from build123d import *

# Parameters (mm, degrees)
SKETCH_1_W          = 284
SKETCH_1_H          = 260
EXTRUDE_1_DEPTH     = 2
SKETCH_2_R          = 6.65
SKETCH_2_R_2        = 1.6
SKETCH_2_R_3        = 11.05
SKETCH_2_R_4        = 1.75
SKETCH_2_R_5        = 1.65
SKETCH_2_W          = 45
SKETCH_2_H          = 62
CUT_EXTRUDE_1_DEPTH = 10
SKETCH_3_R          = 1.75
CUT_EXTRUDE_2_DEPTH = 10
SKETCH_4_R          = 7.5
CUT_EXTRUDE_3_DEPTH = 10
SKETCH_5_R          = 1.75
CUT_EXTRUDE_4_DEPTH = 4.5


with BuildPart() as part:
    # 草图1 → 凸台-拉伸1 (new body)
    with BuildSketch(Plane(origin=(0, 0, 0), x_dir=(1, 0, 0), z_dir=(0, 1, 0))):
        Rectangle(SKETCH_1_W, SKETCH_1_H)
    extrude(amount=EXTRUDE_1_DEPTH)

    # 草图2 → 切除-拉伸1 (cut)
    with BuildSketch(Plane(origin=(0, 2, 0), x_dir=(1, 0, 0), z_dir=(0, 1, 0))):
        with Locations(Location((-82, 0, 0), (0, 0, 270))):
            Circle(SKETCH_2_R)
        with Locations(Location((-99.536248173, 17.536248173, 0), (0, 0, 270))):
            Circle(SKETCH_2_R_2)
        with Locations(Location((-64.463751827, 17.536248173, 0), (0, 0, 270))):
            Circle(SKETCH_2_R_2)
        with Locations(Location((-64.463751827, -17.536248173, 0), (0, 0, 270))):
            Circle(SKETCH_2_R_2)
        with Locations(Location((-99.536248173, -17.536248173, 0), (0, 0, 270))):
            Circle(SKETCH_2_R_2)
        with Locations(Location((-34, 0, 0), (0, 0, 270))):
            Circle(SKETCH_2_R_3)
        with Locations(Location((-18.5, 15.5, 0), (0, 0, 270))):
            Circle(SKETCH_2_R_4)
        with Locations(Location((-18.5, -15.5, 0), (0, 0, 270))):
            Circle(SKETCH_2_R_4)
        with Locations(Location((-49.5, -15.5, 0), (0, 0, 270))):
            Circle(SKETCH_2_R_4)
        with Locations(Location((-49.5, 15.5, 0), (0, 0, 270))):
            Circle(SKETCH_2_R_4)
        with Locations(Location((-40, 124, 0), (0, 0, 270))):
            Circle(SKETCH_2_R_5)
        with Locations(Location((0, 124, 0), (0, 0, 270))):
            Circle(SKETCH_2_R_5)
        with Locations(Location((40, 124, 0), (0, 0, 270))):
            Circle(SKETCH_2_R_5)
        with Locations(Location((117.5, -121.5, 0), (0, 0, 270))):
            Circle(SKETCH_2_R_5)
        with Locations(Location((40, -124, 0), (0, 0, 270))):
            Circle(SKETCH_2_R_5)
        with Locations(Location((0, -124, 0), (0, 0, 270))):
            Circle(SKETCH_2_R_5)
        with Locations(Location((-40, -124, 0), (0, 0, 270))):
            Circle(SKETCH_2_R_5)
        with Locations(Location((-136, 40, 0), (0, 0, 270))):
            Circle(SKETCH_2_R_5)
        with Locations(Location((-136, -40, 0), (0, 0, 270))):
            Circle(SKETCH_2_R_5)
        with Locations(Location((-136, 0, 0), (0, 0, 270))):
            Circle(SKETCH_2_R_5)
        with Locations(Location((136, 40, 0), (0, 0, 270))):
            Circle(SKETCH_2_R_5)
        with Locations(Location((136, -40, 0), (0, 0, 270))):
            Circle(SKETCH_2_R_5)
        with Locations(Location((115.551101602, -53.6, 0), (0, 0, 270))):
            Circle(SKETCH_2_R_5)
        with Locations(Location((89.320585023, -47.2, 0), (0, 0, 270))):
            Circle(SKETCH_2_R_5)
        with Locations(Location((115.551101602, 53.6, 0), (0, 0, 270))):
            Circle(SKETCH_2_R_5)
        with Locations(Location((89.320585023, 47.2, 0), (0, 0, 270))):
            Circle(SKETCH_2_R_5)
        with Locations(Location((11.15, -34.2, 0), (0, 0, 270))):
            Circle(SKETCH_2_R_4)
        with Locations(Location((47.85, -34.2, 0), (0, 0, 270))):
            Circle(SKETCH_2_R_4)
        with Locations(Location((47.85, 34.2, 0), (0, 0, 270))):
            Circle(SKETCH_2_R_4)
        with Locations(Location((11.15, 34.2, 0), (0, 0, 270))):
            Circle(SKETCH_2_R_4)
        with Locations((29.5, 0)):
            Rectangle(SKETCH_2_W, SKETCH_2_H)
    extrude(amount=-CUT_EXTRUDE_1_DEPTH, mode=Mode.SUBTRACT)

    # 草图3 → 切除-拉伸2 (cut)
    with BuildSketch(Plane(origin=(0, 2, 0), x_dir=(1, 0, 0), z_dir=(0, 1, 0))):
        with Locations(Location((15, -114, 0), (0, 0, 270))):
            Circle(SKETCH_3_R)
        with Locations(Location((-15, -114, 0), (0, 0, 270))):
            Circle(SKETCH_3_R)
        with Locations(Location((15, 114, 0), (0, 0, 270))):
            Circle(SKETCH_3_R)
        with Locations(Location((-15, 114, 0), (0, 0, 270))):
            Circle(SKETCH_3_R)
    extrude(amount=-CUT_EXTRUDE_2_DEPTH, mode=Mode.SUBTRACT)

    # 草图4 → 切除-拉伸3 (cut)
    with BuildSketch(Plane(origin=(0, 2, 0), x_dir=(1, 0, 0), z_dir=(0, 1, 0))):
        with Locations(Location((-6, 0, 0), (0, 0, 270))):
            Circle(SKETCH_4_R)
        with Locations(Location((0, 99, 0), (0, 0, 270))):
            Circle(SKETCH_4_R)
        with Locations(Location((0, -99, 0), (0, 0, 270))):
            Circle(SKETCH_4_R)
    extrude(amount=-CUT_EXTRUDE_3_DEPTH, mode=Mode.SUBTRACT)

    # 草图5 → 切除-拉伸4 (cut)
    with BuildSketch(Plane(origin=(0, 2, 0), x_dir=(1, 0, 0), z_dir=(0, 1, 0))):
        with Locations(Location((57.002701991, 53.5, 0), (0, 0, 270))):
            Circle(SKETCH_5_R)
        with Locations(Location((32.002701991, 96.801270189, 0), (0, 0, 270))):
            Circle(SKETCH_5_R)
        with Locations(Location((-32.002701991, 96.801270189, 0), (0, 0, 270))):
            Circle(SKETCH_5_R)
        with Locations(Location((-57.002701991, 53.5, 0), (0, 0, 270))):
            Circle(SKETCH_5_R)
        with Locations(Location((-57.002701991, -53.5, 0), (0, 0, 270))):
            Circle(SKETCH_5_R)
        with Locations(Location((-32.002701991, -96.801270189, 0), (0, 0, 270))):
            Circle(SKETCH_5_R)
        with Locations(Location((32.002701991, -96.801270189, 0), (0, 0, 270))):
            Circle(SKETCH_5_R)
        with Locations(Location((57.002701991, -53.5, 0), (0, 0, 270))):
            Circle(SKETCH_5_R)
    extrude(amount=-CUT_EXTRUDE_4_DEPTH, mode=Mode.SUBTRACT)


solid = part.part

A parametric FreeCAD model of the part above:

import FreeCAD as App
import Part
import Sketcher

V = App.Vector

doc = App.newDocument("Part")
params = doc.addObject("Spreadsheet::Sheet", "Params")
for row, (alias, value) in enumerate([
    ("sketch1_width", "284 mm"),
    ("sketch1_height", "260 mm"),
    ("pad1_length", "2 mm"),
    ("sketch2_diameter", "13.3 mm"),
    ("sketch2_diameter2", "3.2 mm"),
    ("sketch2_diameter3", "22.1 mm"),
    ("sketch2_diameter4", "3.5 mm"),
    ("sketch2_diameter5", "3.3 mm"),
    ("pocket1_length", "10 mm"),
    ("sketch3_diameter", "3.5 mm"),
    ("pocket2_length", "10 mm"),
    ("sketch4_diameter", "15 mm"),
    ("pocket3_length", "10 mm"),
    ("sketch5_diameter", "3.5 mm"),
    ("pocket4_length", "4.5 mm"),
], start=1):
    params.set(f"A{row}", alias)
    params.set(f"B{row}", "=" + value)
    params.setAlias(f"B{row}", alias)

body = doc.addObject("PartDesign::Body", "Body")

# Sketch on XZ plane
sketch1 = body.newObject("Sketcher::SketchObject", "Sketch")
sketch1.AttachmentSupport = (doc.getObject("XZ_Plane"), [""])
sketch1.MapMode = "FlatFace"
sketch1.addGeometry(Part.LineSegment(V(-142, -130, 0), V(-142, 130, 0)), False)
sketch1.addGeometry(Part.LineSegment(V(-142, 130, 0), V(142, 130, 0)), False)
sketch1.addGeometry(Part.LineSegment(V(142, 130, 0), V(142, -130, 0)), False)
sketch1.addGeometry(Part.LineSegment(V(142, -130, 0), V(-142, -130, 0)), False)
sketch1.addConstraint(Sketcher.Constraint("Coincident", 0, 2, 1, 1))
sketch1.addConstraint(Sketcher.Constraint("Coincident", 1, 2, 2, 1))
sketch1.addConstraint(Sketcher.Constraint("Coincident", 2, 2, 3, 1))
sketch1.addConstraint(Sketcher.Constraint("Coincident", 3, 2, 0, 1))
sketch1.addConstraint(Sketcher.Constraint("Vertical", 0))
sketch1.addConstraint(Sketcher.Constraint("Horizontal", 1))
sketch1.addConstraint(Sketcher.Constraint("Vertical", 2))
sketch1.addConstraint(Sketcher.Constraint("Horizontal", 3))
sketch1.addConstraint(Sketcher.Constraint("Symmetric", 0, 2, 2, 2, -1, 1))
sketch1.addConstraint(Sketcher.Constraint("DistanceX", 1, 1, 1, 2, 284.0))
sketch1.addConstraint(Sketcher.Constraint("DistanceY", 0, 1, 0, 2, 260.0))
sketch1.setExpression("Constraints[9]", "Params.sketch1_width")
sketch1.setExpression("Constraints[10]", "Params.sketch1_height")
pad1 = body.newObject("PartDesign::Pad", "Pad")
pad1.Profile = sketch1
pad1.setExpression("Length", "Params.pad1_length")
pad1.Reversed = True

# Sketch on XZ plane
sketch2 = body.newObject("Sketcher::SketchObject", "Sketch001")
sketch2.AttachmentSupport = (doc.getObject("XZ_Plane"), [""])
sketch2.MapMode = "FlatFace"
sketch2.AttachmentOffset = App.Placement(V(0, 0, -2), App.Rotation())
sketch2.addGeometry(Part.Circle(V(-82, 0, 0), V(0, 0, 1), 6.7), False)
sketch2.addGeometry(Part.Circle(V(-99.5, -17.5, 0), V(0, 0, 1), 1.6), False)
sketch2.addGeometry(Part.Circle(V(-64.5, -17.5, 0), V(0, 0, 1), 1.6), False)
sketch2.addGeometry(Part.Circle(V(-64.5, 17.5, 0), V(0, 0, 1), 1.6), False)
sketch2.addGeometry(Part.Circle(V(-99.5, 17.5, 0), V(0, 0, 1), 1.6), False)
sketch2.addGeometry(Part.Circle(V(-34, 0, 0), V(0, 0, 1), 11.1), False)
sketch2.addGeometry(Part.Circle(V(-18.5, -15.5, 0), V(0, 0, 1), 1.8), False)
sketch2.addGeometry(Part.Circle(V(-18.5, 15.5, 0), V(0, 0, 1), 1.8), False)
sketch2.addGeometry(Part.Circle(V(-49.5, 15.5, 0), V(0, 0, 1), 1.8), False)
sketch2.addGeometry(Part.Circle(V(-49.5, -15.5, 0), V(0, 0, 1), 1.8), False)
sketch2.addGeometry(Part.Circle(V(-40, -124, 0), V(0, 0, 1), 1.6), False)
sketch2.addGeometry(Part.Circle(V(0, -124, 0), V(0, 0, 1), 1.6), False)
sketch2.addGeometry(Part.Circle(V(40, -124, 0), V(0, 0, 1), 1.6), False)
sketch2.addGeometry(Part.Circle(V(117.5, 121.5, 0), V(0, 0, 1), 1.6), False)
sketch2.addGeometry(Part.Circle(V(40, 124, 0), V(0, 0, 1), 1.6), False)
sketch2.addGeometry(Part.Circle(V(0, 124, 0), V(0, 0, 1), 1.6), False)
sketch2.addGeometry(Part.Circle(V(-40, 124, 0), V(0, 0, 1), 1.6), False)
sketch2.addGeometry(Part.Circle(V(-136, -40, 0), V(0, 0, 1), 1.6), False)
sketch2.addGeometry(Part.Circle(V(-136, 40, 0), V(0, 0, 1), 1.6), False)
sketch2.addGeometry(Part.Circle(V(-136, 0, 0), V(0, 0, 1), 1.6), False)
sketch2.addGeometry(Part.Circle(V(136, -40, 0), V(0, 0, 1), 1.6), False)
sketch2.addGeometry(Part.Circle(V(136, 40, 0), V(0, 0, 1), 1.6), False)
sketch2.addGeometry(Part.Circle(V(115.6, 53.6, 0), V(0, 0, 1), 1.6), False)
sketch2.addGeometry(Part.Circle(V(89.3, 47.2, 0), V(0, 0, 1), 1.6), False)
sketch2.addGeometry(Part.Circle(V(115.6, -53.6, 0), V(0, 0, 1), 1.6), False)
sketch2.addGeometry(Part.Circle(V(89.3, -47.2, 0), V(0, 0, 1), 1.6), False)
sketch2.addGeometry(Part.Circle(V(11.2, 34.2, 0), V(0, 0, 1), 1.8), False)
sketch2.addGeometry(Part.Circle(V(47.9, 34.2, 0), V(0, 0, 1), 1.8), False)
sketch2.addGeometry(Part.Circle(V(47.9, -34.2, 0), V(0, 0, 1), 1.8), False)
sketch2.addGeometry(Part.Circle(V(11.2, -34.2, 0), V(0, 0, 1), 1.8), False)
sketch2.addGeometry(Part.LineSegment(V(7, -31, 0), V(7, 31, 0)), False)
sketch2.addGeometry(Part.LineSegment(V(7, 31, 0), V(52, 31, 0)), False)
sketch2.addGeometry(Part.LineSegment(V(52, 31, 0), V(52, -31, 0)), False)
sketch2.addGeometry(Part.LineSegment(V(52, -31, 0), V(7, -31, 0)), False)
sketch2.addConstraint(Sketcher.Constraint("Coincident", 30, 2, 31, 1))
sketch2.addConstraint(Sketcher.Constraint("Coincident", 31, 2, 32, 1))
sketch2.addConstraint(Sketcher.Constraint("Coincident", 32, 2, 33, 1))
sketch2.addConstraint(Sketcher.Constraint("Coincident", 33, 2, 30, 1))
sketch2.addConstraint(Sketcher.Constraint("Vertical", 30))
sketch2.addConstraint(Sketcher.Constraint("Horizontal", 31))
sketch2.addConstraint(Sketcher.Constraint("Vertical", 32))
sketch2.addConstraint(Sketcher.Constraint("Horizontal", 33))
sketch2.addConstraint(Sketcher.Constraint("Equal", 1, 2))
sketch2.addConstraint(Sketcher.Constraint("Equal", 2, 3))
sketch2.addConstraint(Sketcher.Constraint("Equal", 3, 4))
sketch2.addConstraint(Sketcher.Constraint("Equal", 6, 7))
sketch2.addConstraint(Sketcher.Constraint("Equal", 7, 8))
sketch2.addConstraint(Sketcher.Constraint("Equal", 8, 9))
sketch2.addConstraint(Sketcher.Constraint("Equal", 10, 11))
sketch2.addConstraint(Sketcher.Constraint("Equal", 11, 12))
sketch2.addConstraint(Sketcher.Constraint("Equal", 12, 13))
sketch2.addConstraint(Sketcher.Constraint("Equal", 13, 14))
sketch2.addConstraint(Sketcher.Constraint("Equal", 14, 15))
sketch2.addConstraint(Sketcher.Constraint("Equal", 15, 16))
sketch2.addConstraint(Sketcher.Constraint("Equal", 16, 17))
sketch2.addConstraint(Sketcher.Constraint("Equal", 17, 18))
sketch2.addConstraint(Sketcher.Constraint("Equal", 18, 19))
sketch2.addConstraint(Sketcher.Constraint("Equal", 19, 20))
sketch2.addConstraint(Sketcher.Constraint("Equal", 20, 21))
sketch2.addConstraint(Sketcher.Constraint("Equal", 21, 22))
sketch2.addConstraint(Sketcher.Constraint("Equal", 22, 23))
sketch2.addConstraint(Sketcher.Constraint("Equal", 23, 24))
sketch2.addConstraint(Sketcher.Constraint("Equal", 24, 25))
sketch2.addConstraint(Sketcher.Constraint("Equal", 9, 26))
sketch2.addConstraint(Sketcher.Constraint("Equal", 26, 27))
sketch2.addConstraint(Sketcher.Constraint("Equal", 27, 28))
sketch2.addConstraint(Sketcher.Constraint("Equal", 28, 29))
sketch2.addConstraint(Sketcher.Constraint("Symmetric", 10, 3, 14, 3, -1, 1))
sketch2.addConstraint(Sketcher.Constraint("Symmetric", 11, 3, 15, 3, -1, 1))
sketch2.addConstraint(Sketcher.Constraint("Symmetric", 12, 3, 16, 3, -1, 1))
sketch2.addConstraint(Sketcher.Constraint("Symmetric", 18, 3, 20, 3, -1, 1))
sketch2.addConstraint(Sketcher.Constraint("Symmetric", 17, 3, 21, 3, -1, 1))
sketch2.addConstraint(Sketcher.Constraint("Symmetric", 10, 3, 12, 3, -2))
sketch2.addConstraint(Sketcher.Constraint("Symmetric", 17, 3, 20, 3, -2))
sketch2.addConstraint(Sketcher.Constraint("Symmetric", 2, 3, 3, 3, -1))
sketch2.addConstraint(Sketcher.Constraint("Symmetric", 1, 3, 4, 3, -1))
sketch2.addConstraint(Sketcher.Constraint("Symmetric", 6, 3, 7, 3, -1))
sketch2.addConstraint(Sketcher.Constraint("Symmetric", 8, 3, 9, 3, -1))
sketch2.addConstraint(Sketcher.Constraint("Symmetric", 22, 3, 24, 3, -1))
sketch2.addConstraint(Sketcher.Constraint("Symmetric", 23, 3, 25, 3, -1))
sketch2.addConstraint(Sketcher.Constraint("Symmetric", 27, 3, 28, 3, -1))
sketch2.addConstraint(Sketcher.Constraint("Symmetric", 26, 3, 29, 3, -1))
sketch2.addConstraint(Sketcher.Constraint("PointOnObject", 0, 3, -1))
sketch2.addConstraint(Sketcher.Constraint("PointOnObject", 5, 3, -1))
sketch2.addConstraint(Sketcher.Constraint("PointOnObject", 11, 3, -2))
sketch2.addConstraint(Sketcher.Constraint("PointOnObject", 19, 3, -1))
sketch2.addConstraint(Sketcher.Constraint("Horizontal", 1, 3, 2, 3))
sketch2.addConstraint(Sketcher.Constraint("Horizontal", 7, 3, 8, 3))
sketch2.addConstraint(Sketcher.Constraint("Horizontal", 10, 3, 11, 3))
sketch2.addConstraint(Sketcher.Constraint("Horizontal", 26, 3, 27, 3))
sketch2.addConstraint(Sketcher.Constraint("Vertical", 18, 3, 19, 3))
sketch2.addConstraint(Sketcher.Constraint("Diameter", 0, 13.3))
sketch2.addConstraint(Sketcher.Constraint("Diameter", 1, 3.2))
sketch2.addConstraint(Sketcher.Constraint("Diameter", 5, 22.1))
sketch2.addConstraint(Sketcher.Constraint("Diameter", 6, 3.5))
sketch2.addConstraint(Sketcher.Constraint("Diameter", 10, 3.3))
sketch2.addConstraint(Sketcher.Constraint("DistanceX", 31, 1, 31, 2, 45.0))
sketch2.addConstraint(Sketcher.Constraint("DistanceY", 30, 1, 30, 2, 62.0))
sketch2.addConstraint(Sketcher.Constraint("DistanceX", 0, 3, -1, 1, 82.0))
sketch2.addConstraint(Sketcher.Constraint("DistanceX", 5, 3, -1, 1, 34.0))
sketch2.addConstraint(Sketcher.Constraint("DistanceX", 10, 3, -1, 1, 40.0))
sketch2.addConstraint(Sketcher.Constraint("DistanceY", 10, 3, -1, 1, 124.0))
sketch2.addConstraint(Sketcher.Constraint("DistanceX", 17, 3, -1, 1, 136.0))
sketch2.addConstraint(Sketcher.Constraint("DistanceY", 17, 3, -1, 1, 40.0))
sketch2.addConstraint(Sketcher.Constraint("DistanceX", -1, 1, 30, 2, 7.0))
sketch2.addConstraint(Sketcher.Constraint("DistanceY", -1, 1, 30, 2, 31.0))
sketch2.addConstraint(Sketcher.Constraint("DistanceY", 6, 3, 7, 3, 31.0))
sketch2.addConstraint(Sketcher.Constraint("DistanceX", 8, 3, 7, 3, 31.0))
sketch2.addConstraint(Sketcher.Constraint("DistanceX", 7, 3, 13, 3, 136.0))
sketch2.addConstraint(Sketcher.Constraint("DistanceY", 7, 3, 13, 3, 106.0))
sketch2.addConstraint(Sketcher.Constraint("DistanceY", 27, 3, 23, 3, 13.0))
sketch2.addConstraint(Sketcher.Constraint("DistanceX", 6, 3, -1, 1, 18.5))
sketch2.addConstraint(Sketcher.Constraint("DistanceY", -1, 1, 22, 3, 53.6))
sketch2.addConstraint(Sketcher.Constraint("DistanceY", -1, 1, 23, 3, 47.2))
sketch2.addConstraint(Sketcher.Constraint("DistanceX", 26, 3, 27, 3, 36.7))
sketch2.addConstraint(Sketcher.Constraint("DistanceX", -1, 1, 26, 3, 11.15))
sketch2.addConstraint(Sketcher.Constraint("DistanceX", -1, 1, 22, 3, 115.551102))
sketch2.addConstraint(Sketcher.Constraint("DistanceX", 1, 3, -1, 1, 99.536248))
sketch2.addConstraint(Sketcher.Constraint("DistanceY", 1, 3, -1, 1, 17.536248))
sketch2.addConstraint(Sketcher.Constraint("DistanceX", 2, 3, -1, 1, 64.463752))
sketch2.addConstraint(Sketcher.Constraint("DistanceX", -1, 1, 23, 3, 89.320585))
sketch2.setExpression("Constraints[57]", "Params.sketch2_diameter")
sketch2.setExpression("Constraints[58]", "Params.sketch2_diameter2")
sketch2.setExpression("Constraints[59]", "Params.sketch2_diameter3")
sketch2.setExpression("Constraints[60]", "Params.sketch2_diameter4")
sketch2.setExpression("Constraints[61]", "Params.sketch2_diameter5")
pocket1 = body.newObject("PartDesign::Pocket", "Pocket")
pocket1.Profile = sketch2
pocket1.setExpression("Length", "Params.pocket1_length")
pocket1.Reversed = True

# Sketch on XZ plane
sketch3 = body.newObject("Sketcher::SketchObject", "Sketch002")
sketch3.AttachmentSupport = (doc.getObject("XZ_Plane"), [""])
sketch3.MapMode = "FlatFace"
sketch3.AttachmentOffset = App.Placement(V(0, 0, -2), App.Rotation())
sketch3.addGeometry(Part.Circle(V(15, 114, 0), V(0, 0, 1), 1.8), False)
sketch3.addGeometry(Part.Circle(V(-15, 114, 0), V(0, 0, 1), 1.8), False)
sketch3.addGeometry(Part.Circle(V(15, -114, 0), V(0, 0, 1), 1.8), False)
sketch3.addGeometry(Part.Circle(V(-15, -114, 0), V(0, 0, 1), 1.8), False)
sketch3.addConstraint(Sketcher.Constraint("Equal", 0, 1))
sketch3.addConstraint(Sketcher.Constraint("Equal", 1, 2))
sketch3.addConstraint(Sketcher.Constraint("Equal", 2, 3))
sketch3.addConstraint(Sketcher.Constraint("Symmetric", 1, 3, 2, 3, -1, 1))
sketch3.addConstraint(Sketcher.Constraint("Symmetric", 0, 3, 3, 3, -1, 1))
sketch3.addConstraint(Sketcher.Constraint("Symmetric", 0, 3, 1, 3, -2))
sketch3.addConstraint(Sketcher.Constraint("Diameter", 0, 3.5))
sketch3.addConstraint(Sketcher.Constraint("DistanceX", -1, 1, 0, 3, 15.0))
sketch3.addConstraint(Sketcher.Constraint("DistanceY", -1, 1, 0, 3, 114.0))
sketch3.setExpression("Constraints[6]", "Params.sketch3_diameter")
pocket2 = body.newObject("PartDesign::Pocket", "Pocket001")
pocket2.Profile = sketch3
pocket2.setExpression("Length", "Params.pocket2_length")
pocket2.Reversed = True

# Sketch on XZ plane
sketch4 = body.newObject("Sketcher::SketchObject", "Sketch003")
sketch4.AttachmentSupport = (doc.getObject("XZ_Plane"), [""])
sketch4.MapMode = "FlatFace"
sketch4.AttachmentOffset = App.Placement(V(0, 0, -2), App.Rotation())
sketch4.addGeometry(Part.Circle(V(-6, 0, 0), V(0, 0, 1), 8), False)
sketch4.addGeometry(Part.Circle(V(0, -99, 0), V(0, 0, 1), 8), False)
sketch4.addGeometry(Part.Circle(V(0, 99, 0), V(0, 0, 1), 8), False)
sketch4.addConstraint(Sketcher.Constraint("Equal", 0, 1))
sketch4.addConstraint(Sketcher.Constraint("Equal", 1, 2))
sketch4.addConstraint(Sketcher.Constraint("Symmetric", 1, 3, 2, 3, -1, 1))
sketch4.addConstraint(Sketcher.Constraint("PointOnObject", 0, 3, -1))
sketch4.addConstraint(Sketcher.Constraint("PointOnObject", 1, 3, -2))
sketch4.addConstraint(Sketcher.Constraint("Diameter", 0, 15.0))
sketch4.addConstraint(Sketcher.Constraint("DistanceX", 0, 3, -1, 1, 6.0))
sketch4.addConstraint(Sketcher.Constraint("DistanceY", 1, 3, -1, 1, 99.0))
sketch4.setExpression("Constraints[5]", "Params.sketch4_diameter")
pocket3 = body.newObject("PartDesign::Pocket", "Pocket002")
pocket3.Profile = sketch4
pocket3.setExpression("Length", "Params.pocket3_length")
pocket3.Reversed = True

# Sketch on XZ plane
sketch5 = body.newObject("Sketcher::SketchObject", "Sketch004")
sketch5.AttachmentSupport = (doc.getObject("XZ_Plane"), [""])
sketch5.MapMode = "FlatFace"
sketch5.AttachmentOffset = App.Placement(V(0, 0, -2), App.Rotation())
sketch5.addGeometry(Part.Circle(V(57, -53.5, 0), V(0, 0, 1), 1.8), False)
sketch5.addGeometry(Part.Circle(V(32, -96.8, 0), V(0, 0, 1), 1.8), False)
sketch5.addGeometry(Part.Circle(V(-32, -96.8, 0), V(0, 0, 1), 1.8), False)
sketch5.addGeometry(Part.Circle(V(-57, -53.5, 0), V(0, 0, 1), 1.8), False)
sketch5.addGeometry(Part.Circle(V(-57, 53.5, 0), V(0, 0, 1), 1.8), False)
sketch5.addGeometry(Part.Circle(V(-32, 96.8, 0), V(0, 0, 1), 1.8), False)
sketch5.addGeometry(Part.Circle(V(32, 96.8, 0), V(0, 0, 1), 1.8), False)
sketch5.addGeometry(Part.Circle(V(57, 53.5, 0), V(0, 0, 1), 1.8), False)
sketch5.addConstraint(Sketcher.Constraint("Equal", 0, 1))
sketch5.addConstraint(Sketcher.Constraint("Equal", 1, 2))
sketch5.addConstraint(Sketcher.Constraint("Equal", 2, 3))
sketch5.addConstraint(Sketcher.Constraint("Equal", 3, 4))
sketch5.addConstraint(Sketcher.Constraint("Equal", 4, 5))
sketch5.addConstraint(Sketcher.Constraint("Equal", 5, 6))
sketch5.addConstraint(Sketcher.Constraint("Equal", 6, 7))
sketch5.addConstraint(Sketcher.Constraint("Symmetric", 0, 3, 4, 3, -1, 1))
sketch5.addConstraint(Sketcher.Constraint("Symmetric", 1, 3, 5, 3, -1, 1))
sketch5.addConstraint(Sketcher.Constraint("Symmetric", 2, 3, 6, 3, -1, 1))
sketch5.addConstraint(Sketcher.Constraint("Symmetric", 3, 3, 7, 3, -1, 1))
sketch5.addConstraint(Sketcher.Constraint("Symmetric", 1, 3, 2, 3, -2))
sketch5.addConstraint(Sketcher.Constraint("Symmetric", 0, 3, 3, 3, -2))
sketch5.addConstraint(Sketcher.Constraint("Diameter", 0, 3.5))
sketch5.addConstraint(Sketcher.Constraint("DistanceX", 1, 3, 0, 3, 25.0))
sketch5.addConstraint(Sketcher.Constraint("DistanceY", 3, 3, 4, 3, 107.0))
sketch5.addConstraint(Sketcher.Constraint("DistanceX", -1, 1, 0, 3, 57.002702))
sketch5.addConstraint(Sketcher.Constraint("DistanceY", 1, 3, -1, 1, 96.80127))
sketch5.setExpression("Constraints[13]", "Params.sketch5_diameter")
pocket4 = body.newObject("PartDesign::Pocket", "Pocket003")
pocket4.Profile = sketch5
pocket4.setExpression("Length", "Params.pocket4_length")
pocket4.Reversed = True

doc.recompute()
